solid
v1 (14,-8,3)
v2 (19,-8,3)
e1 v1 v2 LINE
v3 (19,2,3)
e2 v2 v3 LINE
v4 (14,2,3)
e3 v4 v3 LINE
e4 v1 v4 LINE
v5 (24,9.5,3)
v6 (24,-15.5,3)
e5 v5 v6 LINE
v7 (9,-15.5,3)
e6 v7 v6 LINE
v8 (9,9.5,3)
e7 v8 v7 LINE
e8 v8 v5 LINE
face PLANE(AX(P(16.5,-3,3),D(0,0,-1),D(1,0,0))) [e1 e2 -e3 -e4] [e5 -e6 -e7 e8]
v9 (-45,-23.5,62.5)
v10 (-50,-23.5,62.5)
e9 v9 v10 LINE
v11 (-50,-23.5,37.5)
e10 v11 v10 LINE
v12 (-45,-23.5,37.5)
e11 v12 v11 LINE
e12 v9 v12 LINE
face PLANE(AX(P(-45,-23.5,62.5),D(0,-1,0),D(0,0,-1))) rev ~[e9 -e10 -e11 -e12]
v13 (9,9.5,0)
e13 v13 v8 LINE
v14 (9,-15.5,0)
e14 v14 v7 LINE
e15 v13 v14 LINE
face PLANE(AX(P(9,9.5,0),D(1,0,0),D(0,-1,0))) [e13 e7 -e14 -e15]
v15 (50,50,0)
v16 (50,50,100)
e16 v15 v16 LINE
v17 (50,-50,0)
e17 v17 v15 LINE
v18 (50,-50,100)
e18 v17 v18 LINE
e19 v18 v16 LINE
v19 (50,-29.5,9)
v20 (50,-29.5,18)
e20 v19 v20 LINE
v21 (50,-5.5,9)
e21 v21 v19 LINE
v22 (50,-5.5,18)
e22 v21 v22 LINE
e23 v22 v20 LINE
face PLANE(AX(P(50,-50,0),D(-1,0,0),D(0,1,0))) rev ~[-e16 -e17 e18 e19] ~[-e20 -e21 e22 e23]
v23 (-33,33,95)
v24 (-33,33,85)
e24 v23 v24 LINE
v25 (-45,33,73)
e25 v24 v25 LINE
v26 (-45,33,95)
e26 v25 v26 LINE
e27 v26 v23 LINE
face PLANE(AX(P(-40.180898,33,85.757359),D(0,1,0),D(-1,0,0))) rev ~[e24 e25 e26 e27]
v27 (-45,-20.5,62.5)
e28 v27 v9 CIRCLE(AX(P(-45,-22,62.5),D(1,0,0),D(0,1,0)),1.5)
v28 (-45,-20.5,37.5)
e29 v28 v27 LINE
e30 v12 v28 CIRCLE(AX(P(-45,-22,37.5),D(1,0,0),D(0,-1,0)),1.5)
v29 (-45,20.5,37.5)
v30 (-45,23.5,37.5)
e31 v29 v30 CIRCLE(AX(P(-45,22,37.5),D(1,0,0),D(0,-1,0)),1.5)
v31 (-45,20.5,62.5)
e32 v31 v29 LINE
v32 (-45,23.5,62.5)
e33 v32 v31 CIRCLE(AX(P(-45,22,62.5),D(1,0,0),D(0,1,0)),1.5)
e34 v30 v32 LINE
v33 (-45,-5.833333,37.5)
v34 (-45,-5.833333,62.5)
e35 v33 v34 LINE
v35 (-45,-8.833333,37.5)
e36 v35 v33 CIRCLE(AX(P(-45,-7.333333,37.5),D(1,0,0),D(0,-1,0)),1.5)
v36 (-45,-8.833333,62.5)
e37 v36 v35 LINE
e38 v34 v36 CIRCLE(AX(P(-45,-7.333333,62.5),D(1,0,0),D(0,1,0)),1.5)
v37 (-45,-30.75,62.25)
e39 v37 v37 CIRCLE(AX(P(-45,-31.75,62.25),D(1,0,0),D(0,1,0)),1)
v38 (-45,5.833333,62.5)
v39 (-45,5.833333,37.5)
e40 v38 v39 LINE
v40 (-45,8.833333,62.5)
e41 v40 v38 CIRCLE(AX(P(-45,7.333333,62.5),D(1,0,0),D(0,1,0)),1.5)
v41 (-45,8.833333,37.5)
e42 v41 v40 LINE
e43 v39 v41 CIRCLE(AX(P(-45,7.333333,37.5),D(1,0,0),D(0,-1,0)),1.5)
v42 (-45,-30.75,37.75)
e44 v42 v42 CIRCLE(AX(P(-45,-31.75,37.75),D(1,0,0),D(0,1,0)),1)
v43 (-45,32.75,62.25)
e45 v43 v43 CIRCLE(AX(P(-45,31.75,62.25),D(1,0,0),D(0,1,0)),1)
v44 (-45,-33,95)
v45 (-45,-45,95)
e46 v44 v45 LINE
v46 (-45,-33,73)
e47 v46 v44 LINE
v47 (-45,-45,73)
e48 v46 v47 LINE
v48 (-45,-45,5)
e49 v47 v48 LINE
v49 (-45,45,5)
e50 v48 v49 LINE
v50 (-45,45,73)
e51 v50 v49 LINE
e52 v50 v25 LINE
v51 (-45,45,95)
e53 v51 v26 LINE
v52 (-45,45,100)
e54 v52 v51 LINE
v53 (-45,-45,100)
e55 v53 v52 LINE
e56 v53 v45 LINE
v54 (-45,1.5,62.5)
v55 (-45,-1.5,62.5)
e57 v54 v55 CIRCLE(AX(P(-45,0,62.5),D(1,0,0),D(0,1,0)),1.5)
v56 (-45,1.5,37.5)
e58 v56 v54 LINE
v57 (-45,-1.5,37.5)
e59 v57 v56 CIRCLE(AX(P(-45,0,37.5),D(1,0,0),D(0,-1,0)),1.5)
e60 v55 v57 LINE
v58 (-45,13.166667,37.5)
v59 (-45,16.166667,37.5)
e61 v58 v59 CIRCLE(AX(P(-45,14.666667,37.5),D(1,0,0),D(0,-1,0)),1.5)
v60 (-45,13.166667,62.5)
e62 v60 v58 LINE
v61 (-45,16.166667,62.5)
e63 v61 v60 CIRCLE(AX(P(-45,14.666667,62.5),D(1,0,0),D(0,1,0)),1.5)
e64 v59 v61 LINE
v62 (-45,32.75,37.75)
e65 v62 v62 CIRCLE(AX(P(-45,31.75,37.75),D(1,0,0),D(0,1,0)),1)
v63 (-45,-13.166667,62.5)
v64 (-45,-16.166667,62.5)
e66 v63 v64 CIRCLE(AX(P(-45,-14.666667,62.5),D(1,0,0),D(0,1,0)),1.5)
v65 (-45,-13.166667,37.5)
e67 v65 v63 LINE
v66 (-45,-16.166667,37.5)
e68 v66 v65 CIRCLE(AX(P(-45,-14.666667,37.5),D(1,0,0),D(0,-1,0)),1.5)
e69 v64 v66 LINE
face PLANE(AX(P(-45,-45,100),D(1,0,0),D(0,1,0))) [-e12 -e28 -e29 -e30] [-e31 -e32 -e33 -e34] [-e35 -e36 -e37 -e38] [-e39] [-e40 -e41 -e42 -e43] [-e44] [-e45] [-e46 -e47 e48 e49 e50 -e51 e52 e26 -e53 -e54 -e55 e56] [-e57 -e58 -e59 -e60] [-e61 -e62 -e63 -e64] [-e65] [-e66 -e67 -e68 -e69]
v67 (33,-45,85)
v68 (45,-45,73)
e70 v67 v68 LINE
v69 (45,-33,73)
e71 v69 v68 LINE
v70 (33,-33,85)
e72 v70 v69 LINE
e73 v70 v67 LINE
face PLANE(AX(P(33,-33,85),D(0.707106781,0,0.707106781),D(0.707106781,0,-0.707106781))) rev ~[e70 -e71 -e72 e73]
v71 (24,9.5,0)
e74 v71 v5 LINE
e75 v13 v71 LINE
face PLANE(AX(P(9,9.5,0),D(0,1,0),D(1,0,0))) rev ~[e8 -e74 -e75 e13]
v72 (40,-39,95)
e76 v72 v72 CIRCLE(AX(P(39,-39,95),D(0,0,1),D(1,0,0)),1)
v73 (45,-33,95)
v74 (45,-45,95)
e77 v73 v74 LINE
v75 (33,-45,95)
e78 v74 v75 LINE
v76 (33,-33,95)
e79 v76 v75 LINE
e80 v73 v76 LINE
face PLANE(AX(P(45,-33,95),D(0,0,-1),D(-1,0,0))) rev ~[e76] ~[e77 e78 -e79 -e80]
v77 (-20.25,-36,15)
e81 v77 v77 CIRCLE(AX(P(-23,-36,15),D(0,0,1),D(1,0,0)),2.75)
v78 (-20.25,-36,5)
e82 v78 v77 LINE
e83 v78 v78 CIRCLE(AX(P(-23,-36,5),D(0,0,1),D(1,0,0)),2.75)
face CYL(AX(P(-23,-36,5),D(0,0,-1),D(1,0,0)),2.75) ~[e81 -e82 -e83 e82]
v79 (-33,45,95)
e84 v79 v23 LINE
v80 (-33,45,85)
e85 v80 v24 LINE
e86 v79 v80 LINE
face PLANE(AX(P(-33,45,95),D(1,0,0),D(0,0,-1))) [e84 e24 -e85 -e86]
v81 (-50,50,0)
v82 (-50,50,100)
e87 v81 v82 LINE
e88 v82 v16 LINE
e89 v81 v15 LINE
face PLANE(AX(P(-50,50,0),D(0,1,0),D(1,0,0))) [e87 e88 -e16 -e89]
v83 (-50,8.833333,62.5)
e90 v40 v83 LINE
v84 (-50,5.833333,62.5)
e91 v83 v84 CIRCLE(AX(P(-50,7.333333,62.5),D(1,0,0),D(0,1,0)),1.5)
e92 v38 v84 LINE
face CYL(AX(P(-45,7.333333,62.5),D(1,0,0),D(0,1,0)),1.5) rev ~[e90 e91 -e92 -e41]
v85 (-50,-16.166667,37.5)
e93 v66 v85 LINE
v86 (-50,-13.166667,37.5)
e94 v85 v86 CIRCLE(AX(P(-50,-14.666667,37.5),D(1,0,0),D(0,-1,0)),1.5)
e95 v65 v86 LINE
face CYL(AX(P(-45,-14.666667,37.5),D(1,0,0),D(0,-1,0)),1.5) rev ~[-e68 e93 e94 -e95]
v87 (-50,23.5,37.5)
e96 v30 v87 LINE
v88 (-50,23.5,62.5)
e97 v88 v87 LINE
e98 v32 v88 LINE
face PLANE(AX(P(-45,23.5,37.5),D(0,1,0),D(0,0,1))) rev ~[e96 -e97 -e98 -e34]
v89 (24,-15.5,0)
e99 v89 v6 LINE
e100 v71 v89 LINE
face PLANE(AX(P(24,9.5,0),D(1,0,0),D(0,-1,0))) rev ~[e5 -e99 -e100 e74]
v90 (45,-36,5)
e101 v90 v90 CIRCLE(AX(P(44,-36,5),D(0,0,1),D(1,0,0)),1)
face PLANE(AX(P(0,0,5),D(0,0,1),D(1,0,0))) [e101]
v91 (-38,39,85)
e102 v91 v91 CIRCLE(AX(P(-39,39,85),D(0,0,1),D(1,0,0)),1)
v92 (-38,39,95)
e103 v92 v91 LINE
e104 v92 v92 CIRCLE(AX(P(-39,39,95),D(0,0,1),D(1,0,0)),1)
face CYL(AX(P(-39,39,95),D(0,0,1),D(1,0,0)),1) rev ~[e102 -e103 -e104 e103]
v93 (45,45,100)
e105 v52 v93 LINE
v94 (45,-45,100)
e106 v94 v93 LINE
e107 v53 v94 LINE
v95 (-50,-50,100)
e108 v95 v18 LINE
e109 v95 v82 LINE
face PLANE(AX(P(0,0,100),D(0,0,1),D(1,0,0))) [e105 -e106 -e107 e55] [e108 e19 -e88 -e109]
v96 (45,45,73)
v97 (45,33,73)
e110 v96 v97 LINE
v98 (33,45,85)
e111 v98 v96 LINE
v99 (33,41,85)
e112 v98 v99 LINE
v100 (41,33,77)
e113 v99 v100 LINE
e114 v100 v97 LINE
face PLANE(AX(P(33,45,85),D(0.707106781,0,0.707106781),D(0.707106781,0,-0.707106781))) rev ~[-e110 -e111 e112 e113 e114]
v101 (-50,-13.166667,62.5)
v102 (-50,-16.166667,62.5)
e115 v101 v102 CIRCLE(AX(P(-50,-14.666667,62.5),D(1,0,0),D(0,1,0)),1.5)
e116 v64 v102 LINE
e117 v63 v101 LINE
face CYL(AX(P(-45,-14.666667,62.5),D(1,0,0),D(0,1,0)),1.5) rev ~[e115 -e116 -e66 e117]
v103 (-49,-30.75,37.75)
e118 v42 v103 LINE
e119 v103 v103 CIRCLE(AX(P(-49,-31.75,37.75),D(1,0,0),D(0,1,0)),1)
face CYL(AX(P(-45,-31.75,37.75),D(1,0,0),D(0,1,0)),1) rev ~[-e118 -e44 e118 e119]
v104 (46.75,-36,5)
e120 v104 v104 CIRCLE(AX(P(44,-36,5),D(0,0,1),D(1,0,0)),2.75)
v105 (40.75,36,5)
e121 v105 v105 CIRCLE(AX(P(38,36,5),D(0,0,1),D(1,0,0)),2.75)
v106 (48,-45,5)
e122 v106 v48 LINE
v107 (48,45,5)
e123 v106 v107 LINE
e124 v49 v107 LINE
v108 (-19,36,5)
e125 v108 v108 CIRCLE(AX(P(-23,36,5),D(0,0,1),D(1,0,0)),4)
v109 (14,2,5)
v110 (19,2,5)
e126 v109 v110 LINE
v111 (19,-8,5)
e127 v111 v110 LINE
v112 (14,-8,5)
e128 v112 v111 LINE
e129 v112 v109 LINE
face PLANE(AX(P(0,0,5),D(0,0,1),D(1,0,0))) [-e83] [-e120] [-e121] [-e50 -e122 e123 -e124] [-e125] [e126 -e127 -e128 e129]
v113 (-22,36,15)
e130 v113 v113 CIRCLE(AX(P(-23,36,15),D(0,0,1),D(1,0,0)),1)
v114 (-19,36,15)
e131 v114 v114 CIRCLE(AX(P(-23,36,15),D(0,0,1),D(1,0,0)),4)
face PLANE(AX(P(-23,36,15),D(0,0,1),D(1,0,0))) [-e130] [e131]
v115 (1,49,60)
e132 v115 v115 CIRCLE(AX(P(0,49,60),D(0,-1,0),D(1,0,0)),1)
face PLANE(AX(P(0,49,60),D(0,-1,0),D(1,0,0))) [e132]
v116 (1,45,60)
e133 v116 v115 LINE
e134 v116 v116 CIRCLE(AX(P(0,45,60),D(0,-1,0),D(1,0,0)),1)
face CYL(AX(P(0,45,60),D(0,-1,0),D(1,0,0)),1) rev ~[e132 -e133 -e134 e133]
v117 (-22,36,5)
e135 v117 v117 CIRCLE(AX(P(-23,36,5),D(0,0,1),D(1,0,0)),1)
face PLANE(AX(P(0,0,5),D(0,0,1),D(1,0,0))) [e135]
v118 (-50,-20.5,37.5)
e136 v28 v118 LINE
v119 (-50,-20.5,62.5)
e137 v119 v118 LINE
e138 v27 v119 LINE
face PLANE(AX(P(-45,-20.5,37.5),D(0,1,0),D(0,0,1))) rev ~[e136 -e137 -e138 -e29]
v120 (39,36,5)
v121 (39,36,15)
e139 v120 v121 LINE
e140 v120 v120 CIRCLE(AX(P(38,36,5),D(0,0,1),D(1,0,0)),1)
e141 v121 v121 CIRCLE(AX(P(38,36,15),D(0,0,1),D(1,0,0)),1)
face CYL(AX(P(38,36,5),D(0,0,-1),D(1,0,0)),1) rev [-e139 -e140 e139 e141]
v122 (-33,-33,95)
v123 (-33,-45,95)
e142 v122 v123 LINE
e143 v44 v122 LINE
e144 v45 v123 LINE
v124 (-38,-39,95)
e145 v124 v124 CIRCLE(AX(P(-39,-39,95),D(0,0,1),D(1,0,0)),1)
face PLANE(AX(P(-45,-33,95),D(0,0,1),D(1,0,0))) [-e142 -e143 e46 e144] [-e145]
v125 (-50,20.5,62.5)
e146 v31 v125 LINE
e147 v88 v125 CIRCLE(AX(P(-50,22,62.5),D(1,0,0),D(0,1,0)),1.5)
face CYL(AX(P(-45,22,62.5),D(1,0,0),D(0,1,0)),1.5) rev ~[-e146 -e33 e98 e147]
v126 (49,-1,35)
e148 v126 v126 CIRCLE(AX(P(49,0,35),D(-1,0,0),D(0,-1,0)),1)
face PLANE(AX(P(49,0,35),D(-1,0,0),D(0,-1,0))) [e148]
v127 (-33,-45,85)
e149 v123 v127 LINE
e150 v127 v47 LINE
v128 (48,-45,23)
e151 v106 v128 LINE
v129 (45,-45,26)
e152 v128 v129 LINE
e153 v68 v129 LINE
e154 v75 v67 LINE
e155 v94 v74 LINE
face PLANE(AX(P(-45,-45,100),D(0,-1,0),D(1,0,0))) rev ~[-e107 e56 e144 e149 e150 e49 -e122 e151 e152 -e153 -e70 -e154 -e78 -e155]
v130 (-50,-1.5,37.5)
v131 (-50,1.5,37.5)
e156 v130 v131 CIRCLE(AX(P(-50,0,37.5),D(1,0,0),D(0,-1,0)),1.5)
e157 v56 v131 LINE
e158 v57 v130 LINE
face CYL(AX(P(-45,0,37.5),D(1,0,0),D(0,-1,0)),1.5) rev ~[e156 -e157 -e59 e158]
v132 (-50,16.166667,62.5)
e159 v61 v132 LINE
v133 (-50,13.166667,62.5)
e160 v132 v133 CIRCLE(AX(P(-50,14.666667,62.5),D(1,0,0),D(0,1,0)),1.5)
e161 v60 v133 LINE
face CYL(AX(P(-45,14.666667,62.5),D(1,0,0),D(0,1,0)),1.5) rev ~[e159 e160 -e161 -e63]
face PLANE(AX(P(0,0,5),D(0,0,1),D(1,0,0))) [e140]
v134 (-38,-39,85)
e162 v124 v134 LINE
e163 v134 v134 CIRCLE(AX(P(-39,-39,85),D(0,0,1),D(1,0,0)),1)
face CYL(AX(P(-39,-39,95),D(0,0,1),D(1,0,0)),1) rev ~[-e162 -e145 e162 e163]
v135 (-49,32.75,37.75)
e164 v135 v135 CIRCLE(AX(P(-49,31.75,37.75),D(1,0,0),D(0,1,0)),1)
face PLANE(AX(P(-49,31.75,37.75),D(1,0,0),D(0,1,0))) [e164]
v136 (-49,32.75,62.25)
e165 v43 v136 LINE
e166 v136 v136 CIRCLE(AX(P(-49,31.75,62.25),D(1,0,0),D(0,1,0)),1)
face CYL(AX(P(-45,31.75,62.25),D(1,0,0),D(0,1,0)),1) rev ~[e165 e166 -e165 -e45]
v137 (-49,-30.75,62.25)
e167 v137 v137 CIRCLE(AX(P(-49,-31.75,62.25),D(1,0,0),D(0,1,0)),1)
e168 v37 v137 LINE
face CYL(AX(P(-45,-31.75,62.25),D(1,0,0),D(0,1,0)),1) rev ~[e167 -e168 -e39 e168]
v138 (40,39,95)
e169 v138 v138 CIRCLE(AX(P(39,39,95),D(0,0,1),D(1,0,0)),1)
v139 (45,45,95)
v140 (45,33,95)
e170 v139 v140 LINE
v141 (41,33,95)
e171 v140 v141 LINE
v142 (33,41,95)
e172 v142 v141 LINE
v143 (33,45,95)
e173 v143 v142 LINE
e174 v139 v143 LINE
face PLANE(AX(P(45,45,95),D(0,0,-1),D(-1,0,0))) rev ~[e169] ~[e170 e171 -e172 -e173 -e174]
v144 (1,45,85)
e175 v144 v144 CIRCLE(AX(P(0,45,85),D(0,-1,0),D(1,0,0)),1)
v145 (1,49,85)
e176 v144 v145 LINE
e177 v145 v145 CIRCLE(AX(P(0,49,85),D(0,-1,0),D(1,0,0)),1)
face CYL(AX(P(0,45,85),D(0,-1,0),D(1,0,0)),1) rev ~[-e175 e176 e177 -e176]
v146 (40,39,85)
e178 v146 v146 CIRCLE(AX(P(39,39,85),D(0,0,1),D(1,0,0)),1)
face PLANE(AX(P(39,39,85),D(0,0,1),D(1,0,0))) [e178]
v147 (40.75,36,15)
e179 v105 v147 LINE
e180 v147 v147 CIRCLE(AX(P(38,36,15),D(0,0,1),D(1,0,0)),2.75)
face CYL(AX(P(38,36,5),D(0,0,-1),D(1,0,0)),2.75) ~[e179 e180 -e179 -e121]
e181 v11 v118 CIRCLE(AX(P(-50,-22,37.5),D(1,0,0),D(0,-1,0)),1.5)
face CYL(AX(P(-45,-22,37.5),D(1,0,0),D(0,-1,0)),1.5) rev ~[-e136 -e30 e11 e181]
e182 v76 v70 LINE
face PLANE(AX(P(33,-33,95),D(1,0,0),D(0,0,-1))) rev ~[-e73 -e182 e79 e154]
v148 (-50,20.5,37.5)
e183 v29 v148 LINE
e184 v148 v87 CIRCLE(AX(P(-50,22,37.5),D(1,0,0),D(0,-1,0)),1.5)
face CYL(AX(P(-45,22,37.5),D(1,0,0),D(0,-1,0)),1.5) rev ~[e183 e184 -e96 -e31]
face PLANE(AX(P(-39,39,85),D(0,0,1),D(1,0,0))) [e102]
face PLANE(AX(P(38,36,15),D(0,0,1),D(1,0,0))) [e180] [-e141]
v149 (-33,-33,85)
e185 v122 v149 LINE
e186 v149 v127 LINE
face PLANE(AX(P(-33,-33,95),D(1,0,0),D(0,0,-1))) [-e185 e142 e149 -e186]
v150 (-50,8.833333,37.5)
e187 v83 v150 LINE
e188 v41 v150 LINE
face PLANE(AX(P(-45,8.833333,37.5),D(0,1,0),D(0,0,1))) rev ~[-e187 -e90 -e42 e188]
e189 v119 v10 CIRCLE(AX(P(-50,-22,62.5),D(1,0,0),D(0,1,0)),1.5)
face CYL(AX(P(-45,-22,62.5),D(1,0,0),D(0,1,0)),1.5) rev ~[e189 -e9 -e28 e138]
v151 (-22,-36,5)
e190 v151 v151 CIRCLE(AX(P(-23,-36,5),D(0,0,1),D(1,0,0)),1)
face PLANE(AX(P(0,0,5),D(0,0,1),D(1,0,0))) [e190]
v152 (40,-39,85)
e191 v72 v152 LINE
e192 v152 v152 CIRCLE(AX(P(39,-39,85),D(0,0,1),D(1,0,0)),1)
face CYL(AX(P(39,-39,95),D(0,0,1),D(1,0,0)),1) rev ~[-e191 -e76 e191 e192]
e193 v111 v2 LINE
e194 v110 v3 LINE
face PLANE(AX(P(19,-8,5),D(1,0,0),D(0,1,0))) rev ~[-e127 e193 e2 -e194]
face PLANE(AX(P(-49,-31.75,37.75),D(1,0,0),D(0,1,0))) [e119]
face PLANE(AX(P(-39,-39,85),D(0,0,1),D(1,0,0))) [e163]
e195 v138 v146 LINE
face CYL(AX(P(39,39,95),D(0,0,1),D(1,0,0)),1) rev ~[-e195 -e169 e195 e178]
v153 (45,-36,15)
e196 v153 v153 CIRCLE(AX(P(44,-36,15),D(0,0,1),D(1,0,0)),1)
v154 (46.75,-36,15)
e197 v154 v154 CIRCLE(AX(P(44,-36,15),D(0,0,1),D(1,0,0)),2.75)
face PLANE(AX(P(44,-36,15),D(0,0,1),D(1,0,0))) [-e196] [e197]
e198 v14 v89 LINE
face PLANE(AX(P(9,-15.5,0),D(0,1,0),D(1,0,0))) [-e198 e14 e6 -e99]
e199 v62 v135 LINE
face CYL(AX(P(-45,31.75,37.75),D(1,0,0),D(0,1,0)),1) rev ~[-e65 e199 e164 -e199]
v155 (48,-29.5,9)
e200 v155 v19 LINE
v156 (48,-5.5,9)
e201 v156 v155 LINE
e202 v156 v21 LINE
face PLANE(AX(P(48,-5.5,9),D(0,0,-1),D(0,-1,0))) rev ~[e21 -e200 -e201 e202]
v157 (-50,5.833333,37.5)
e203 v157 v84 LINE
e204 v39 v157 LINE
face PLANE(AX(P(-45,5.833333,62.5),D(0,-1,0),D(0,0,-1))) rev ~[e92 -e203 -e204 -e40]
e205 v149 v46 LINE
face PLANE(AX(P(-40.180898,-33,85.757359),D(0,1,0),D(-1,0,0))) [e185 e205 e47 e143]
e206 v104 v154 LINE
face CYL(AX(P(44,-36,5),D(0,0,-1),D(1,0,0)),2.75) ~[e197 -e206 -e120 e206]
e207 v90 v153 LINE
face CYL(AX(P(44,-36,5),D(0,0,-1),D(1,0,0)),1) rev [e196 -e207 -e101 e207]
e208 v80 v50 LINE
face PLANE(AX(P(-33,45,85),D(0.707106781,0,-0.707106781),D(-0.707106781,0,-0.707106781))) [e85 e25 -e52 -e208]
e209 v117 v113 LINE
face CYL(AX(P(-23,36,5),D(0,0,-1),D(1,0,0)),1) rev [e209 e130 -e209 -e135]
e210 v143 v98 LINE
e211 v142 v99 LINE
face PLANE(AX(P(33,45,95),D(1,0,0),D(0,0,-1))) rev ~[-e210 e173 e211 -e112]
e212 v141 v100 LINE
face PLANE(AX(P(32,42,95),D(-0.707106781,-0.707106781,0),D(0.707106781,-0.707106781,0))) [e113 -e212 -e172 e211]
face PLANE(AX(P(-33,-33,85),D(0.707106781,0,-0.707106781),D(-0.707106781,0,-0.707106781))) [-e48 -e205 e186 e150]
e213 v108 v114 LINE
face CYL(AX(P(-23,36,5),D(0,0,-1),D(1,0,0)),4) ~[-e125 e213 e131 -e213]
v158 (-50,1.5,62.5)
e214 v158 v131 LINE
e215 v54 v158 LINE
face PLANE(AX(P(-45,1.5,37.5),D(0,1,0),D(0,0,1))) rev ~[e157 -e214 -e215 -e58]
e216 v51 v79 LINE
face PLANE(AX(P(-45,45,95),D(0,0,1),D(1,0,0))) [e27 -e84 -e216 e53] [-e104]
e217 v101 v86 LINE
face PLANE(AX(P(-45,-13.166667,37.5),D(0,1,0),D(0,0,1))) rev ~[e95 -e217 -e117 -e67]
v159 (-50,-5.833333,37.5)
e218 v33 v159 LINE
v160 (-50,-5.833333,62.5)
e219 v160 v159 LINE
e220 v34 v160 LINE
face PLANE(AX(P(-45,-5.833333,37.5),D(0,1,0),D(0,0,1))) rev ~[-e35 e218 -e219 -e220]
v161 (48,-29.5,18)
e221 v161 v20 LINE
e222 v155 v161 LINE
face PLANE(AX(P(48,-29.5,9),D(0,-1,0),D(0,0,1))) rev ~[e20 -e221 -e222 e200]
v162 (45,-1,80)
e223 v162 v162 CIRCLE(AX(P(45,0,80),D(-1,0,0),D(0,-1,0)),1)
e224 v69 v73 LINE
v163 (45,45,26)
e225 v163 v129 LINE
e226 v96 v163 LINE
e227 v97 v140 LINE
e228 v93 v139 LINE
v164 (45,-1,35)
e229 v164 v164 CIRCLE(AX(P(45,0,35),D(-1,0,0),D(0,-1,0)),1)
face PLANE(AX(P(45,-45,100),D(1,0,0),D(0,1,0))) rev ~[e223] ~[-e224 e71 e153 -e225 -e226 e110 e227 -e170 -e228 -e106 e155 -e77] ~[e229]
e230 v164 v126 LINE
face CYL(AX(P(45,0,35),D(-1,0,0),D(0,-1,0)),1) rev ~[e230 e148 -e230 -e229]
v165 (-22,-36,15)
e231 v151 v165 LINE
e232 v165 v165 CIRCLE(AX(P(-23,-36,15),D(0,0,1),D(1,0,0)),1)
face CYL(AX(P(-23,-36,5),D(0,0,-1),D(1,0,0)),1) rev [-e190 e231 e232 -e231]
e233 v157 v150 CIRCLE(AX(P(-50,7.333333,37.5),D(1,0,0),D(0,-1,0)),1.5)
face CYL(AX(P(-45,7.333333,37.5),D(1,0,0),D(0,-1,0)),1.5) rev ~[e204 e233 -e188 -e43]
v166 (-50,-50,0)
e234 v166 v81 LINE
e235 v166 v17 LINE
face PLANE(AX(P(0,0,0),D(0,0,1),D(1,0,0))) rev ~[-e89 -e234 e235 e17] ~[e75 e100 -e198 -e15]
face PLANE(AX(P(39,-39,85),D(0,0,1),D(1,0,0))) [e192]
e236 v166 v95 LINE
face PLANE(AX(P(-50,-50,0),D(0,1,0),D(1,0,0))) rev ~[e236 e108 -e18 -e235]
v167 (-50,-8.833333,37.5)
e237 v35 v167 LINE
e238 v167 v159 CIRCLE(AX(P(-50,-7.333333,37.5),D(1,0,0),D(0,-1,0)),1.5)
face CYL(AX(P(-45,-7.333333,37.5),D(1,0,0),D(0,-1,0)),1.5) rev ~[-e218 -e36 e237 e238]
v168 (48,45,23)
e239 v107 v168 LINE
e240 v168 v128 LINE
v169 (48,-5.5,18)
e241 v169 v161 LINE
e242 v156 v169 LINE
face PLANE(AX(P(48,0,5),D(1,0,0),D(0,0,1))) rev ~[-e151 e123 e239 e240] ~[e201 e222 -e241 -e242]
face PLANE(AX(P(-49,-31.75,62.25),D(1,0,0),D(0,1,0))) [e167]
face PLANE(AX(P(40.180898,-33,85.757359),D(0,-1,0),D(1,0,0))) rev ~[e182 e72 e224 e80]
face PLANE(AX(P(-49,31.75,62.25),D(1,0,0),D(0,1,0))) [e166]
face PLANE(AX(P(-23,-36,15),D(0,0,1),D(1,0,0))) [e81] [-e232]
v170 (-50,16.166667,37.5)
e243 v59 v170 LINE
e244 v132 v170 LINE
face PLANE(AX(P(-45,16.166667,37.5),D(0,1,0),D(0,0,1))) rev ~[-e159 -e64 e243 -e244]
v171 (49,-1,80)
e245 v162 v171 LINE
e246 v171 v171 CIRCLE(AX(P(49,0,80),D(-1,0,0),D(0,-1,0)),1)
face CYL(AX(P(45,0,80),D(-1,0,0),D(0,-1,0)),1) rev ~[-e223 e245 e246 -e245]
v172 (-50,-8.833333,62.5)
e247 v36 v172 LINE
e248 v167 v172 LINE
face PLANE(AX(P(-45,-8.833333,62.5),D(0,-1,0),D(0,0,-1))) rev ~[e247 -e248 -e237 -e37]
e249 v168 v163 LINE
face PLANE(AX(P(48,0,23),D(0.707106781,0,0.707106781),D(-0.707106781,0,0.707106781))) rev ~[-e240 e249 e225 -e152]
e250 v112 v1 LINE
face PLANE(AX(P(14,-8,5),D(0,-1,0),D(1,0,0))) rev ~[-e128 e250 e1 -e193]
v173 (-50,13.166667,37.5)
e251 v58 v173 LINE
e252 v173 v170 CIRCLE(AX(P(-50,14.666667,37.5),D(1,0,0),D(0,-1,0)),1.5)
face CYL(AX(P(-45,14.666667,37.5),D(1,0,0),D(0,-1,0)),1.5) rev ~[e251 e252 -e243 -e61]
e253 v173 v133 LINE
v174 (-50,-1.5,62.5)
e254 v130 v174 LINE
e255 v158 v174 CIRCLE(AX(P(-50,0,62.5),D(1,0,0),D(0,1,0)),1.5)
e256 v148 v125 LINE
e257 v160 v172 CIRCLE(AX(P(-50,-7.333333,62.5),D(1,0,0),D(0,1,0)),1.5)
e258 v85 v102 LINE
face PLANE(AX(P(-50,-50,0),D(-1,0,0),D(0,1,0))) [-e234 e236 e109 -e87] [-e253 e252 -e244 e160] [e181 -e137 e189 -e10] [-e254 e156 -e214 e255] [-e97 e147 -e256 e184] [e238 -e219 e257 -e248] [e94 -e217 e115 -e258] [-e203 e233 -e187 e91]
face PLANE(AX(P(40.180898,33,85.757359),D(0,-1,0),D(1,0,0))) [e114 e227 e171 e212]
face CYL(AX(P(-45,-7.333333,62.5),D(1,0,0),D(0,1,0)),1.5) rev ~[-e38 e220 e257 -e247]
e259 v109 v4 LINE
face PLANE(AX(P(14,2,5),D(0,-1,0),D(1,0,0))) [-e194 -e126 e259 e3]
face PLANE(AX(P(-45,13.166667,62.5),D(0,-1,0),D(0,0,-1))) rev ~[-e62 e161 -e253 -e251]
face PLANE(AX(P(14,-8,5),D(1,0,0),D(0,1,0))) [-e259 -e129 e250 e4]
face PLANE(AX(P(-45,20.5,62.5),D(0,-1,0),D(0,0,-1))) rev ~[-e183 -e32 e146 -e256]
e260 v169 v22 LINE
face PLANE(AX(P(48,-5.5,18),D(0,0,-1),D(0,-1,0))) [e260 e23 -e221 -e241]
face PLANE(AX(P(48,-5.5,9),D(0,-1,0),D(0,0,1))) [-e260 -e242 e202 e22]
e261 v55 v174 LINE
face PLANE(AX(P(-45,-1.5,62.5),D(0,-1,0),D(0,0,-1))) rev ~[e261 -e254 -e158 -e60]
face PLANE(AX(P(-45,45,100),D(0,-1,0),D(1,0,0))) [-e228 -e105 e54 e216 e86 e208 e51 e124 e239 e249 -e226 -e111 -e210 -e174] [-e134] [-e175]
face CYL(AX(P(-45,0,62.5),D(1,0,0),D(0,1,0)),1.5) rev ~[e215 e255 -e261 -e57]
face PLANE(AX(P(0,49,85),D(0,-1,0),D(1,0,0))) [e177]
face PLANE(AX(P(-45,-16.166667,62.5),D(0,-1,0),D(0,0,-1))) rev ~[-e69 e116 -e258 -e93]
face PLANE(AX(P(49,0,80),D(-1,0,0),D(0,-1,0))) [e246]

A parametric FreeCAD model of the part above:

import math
import FreeCAD as App
import Part
import Sketcher

V = App.Vector
Q = App.Units.Quantity

doc = App.newDocument("Part")
params = doc.addObject("Spreadsheet::Sheet", "Params")
for row, (alias, value) in enumerate([
    ("sketch1_width", "100 mm"),
    ("pad1_length", "100 mm"),
    ("sketch2_width", "90 mm"),
    ("pocket1_length", "95 mm"),
    ("sketch3_width", "20 mm"),
    ("sketch3_height", "18 mm"),
    ("sketch3_height2", "38 mm"),
    ("pocket2_length", "45 mm"),
    ("sketch4_diameter", "8 mm"),
    ("sketch4_diameter2", "2 mm"),
    ("sketch4_diameter3", "5.5 mm"),
    ("pad2_length", "10 mm"),
    ("sketch5_width", "24 mm"),
    ("sketch5_height", "9 mm"),
    ("pocket3_length", "5 mm"),
    ("sketch6_width", "5 mm"),
    ("sketch6_height", "10 mm"),
    ("pocket4_length", "6 mm"),
    ("sketch7_width", "15 mm"),
    ("sketch7_height", "25 mm"),
    ("pocket5_length", "3 mm"),
    ("sketch8_diameter", "2 mm"),
    ("pocket6_length", "4 mm"),
    ("sketch9_radius", "1.5 mm"),
    ("sketch9_height", "25 mm"),
    ("pocket7_length", "6 mm"),
    ("sketch10_radius", "1.5 mm"),
    ("sketch10_height", "25 mm"),
    ("pocket8_length", "6 mm"),
    ("sketch11_radius", "1.5 mm"),
    ("sketch11_height", "25 mm"),
    ("pocket9_length", "6 mm"),
    ("sketch12_radius", "1.5 mm"),
    ("sketch12_height", "25 mm"),
    ("pocket10_length", "6 mm"),
    ("linearpattern_pitch", "22 mm"),
    ("sketch13_diameter", "2 mm"),
    ("pocket11_length", "4 mm"),
    ("sketch14_diameter", "2 mm"),
    ("pocket12_length", "4 mm"),
    ("sketch15_width", "12 mm"),
    ("sketch15_height", "22 mm"),
    ("sketch15_height2", "10 mm"),
    ("pad3_length", "12 mm"),
    ("sketch16_width", "12 mm"),
    ("sketch16_height", "22 mm"),
    ("sketch16_height2", "10 mm"),
    ("pad4_length", "12 mm"),
    ("linearpattern2_pitch", "78 mm"),
    ("sketch17_diameter", "2 mm"),
    ("pocket13_length", "10 mm"),
    ("sketch18_width", "10 mm"),
    ("pocket14_length", "20 mm"),
], start=1):
    params.set(f"A{row}", alias)
    params.set(f"B{row}", "=" + value)
    params.setAlias(f"B{row}", alias)

body = doc.addObject("PartDesign::Body", "Body")

# Sketch on XY plane
sketch1 = body.newObject("Sketcher::SketchObject", "Sketch")
sketch1.AttachmentSupport = (doc.getObject("XY_Plane"), [""])
sketch1.MapMode = "FlatFace"
sketch1.addGeometry([
    Part.LineSegment(V(-50, 50, 0), V(-50, -50, 0)),
    Part.LineSegment(V(-50, -50, 0), V(50, -50, 0)),
    Part.LineSegment(V(50, -50, 0), V(50, 50, 0)),
    Part.LineSegment(V(50, 50, 0), V(-50, 50, 0)),
], False)
sketch1.addConstraint([
    Sketcher.Constraint("Coincident", 0, 2, 1, 1),
    Sketcher.Constraint("Coincident", 1, 2, 2, 1),
    Sketcher.Constraint("Coincident", 2, 2, 3, 1),
    Sketcher.Constraint("Coincident", 3, 2, 0, 1),
    Sketcher.Constraint("Vertical", 0),
    Sketcher.Constraint("Horizontal", 1),
    Sketcher.Constraint("Vertical", 2),
    Sketcher.Constraint("Horizontal", 3),
    Sketcher.Constraint("Symmetric", 0, 2, 2, 2, -1, 1),
    Sketcher.Constraint("Equal", 3, 0),
    Sketcher.Constraint("DistanceX", 1, 1, 1, 2, Q("100 mm")),
])
sketch1.setExpression("Constraints[10]", "Params.sketch1_width")
pad1 = body.newObject("PartDesign::Pad", "Pad")
pad1.Profile = sketch1
pad1.setExpression("Length", "Params.pad1_length")

# Sketch on XY plane
sketch2 = body.newObject("Sketcher::SketchObject", "Sketch001")
sketch2.AttachmentSupport = (doc.getObject("XY_Plane"), [""])
sketch2.MapMode = "FlatFace"
sketch2.AttachmentOffset = App.Placement(V(0, 0, 100), App.Rotation())
sketch2.addGeometry([
    Part.LineSegment(V(-45, 45, 0), V(-45, -45, 0)),
    Part.LineSegment(V(-45, -45, 0), V(45, -45, 0)),
    Part.LineSegment(V(45, -45, 0), V(45, 45, 0)),
    Part.LineSegment(V(45, 45, 0), V(-45, 45, 0)),
], False)
sketch2.addConstraint([
    Sketcher.Constraint("Coincident", 0, 2, 1, 1),
    Sketcher.Constraint("Coincident", 1, 2, 2, 1),
    Sketcher.Constraint("Coincident", 2, 2, 3, 1),
    Sketcher.Constraint("Coincident", 3, 2, 0, 1),
    Sketcher.Constraint("Vertical", 0),
    Sketcher.Constraint("Horizontal", 1),
    Sketcher.Constraint("Vertical", 2),
    Sketcher.Constraint("Horizontal", 3),
    Sketcher.Constraint("Symmetric", 0, 2, 2, 2, -1, 1),
    Sketcher.Constraint("Equal", 3, 0),
    Sketcher.Constraint("DistanceX", 1, 1, 1, 2, Q("90 mm")),
])
sketch2.setExpression("Constraints[10]", "Params.sketch2_width")
pocket1 = body.newObject("PartDesign::Pocket", "Pocket")
pocket1.Profile = sketch2
pocket1.setExpression("Length", "Params.pocket1_length")

# Sketch on XZ plane
sketch3 = body.newObject("Sketcher::SketchObject", "Sketch002")
sketch3.AttachmentSupport = (doc.getObject("XZ_Plane"), [""])
sketch3.MapMode = "FlatFace"
sketch3.addGeometry([
    Part.LineSegment(V(28, 5, 0), V(48, 5, 0)),
    Part.LineSegment(V(48, 5, 0), V(48, 23, 0)),
    Part.LineSegment(V(48, 23, 0), V(28, 43, 0)),
    Part.LineSegment(V(28, 43, 0), V(28, 5, 0)),
], False)
sketch3.addConstraint([
    Sketcher.Constraint("Coincident", 0, 2, 1, 1),
    Sketcher.Constraint("Coincident", 1, 2, 2, 1),
    Sketcher.Constraint("Coincident", 2, 2, 3, 1),
    Sketcher.Constraint("Coincident", 3, 2, 0, 1),
    Sketcher.Constraint("Horizontal", 0),
    Sketcher.Constraint("Vertical", 1),
    Sketcher.Constraint("Vertical", 3),
    Sketcher.Constraint("DistanceX", 0, 1, 0, 2, Q("20 mm")),
    Sketcher.Constraint("DistanceY", 1, 1, 1, 2, Q("18 mm")),
    Sketcher.Constraint("DistanceY", 3, 2, 3, 1, Q("38 mm")),
    Sketcher.Constraint("DistanceX", -1, 1, 0, 2, Q("48 mm")),
    Sketcher.Constraint("DistanceY", -1, 1, 0, 2, Q("5 mm")),
])
sketch3.setExpression("Constraints[7]", "Params.sketch3_width")
sketch3.setExpression("Constraints[8]", "Params.sketch3_height")
sketch3.setExpression("Constraints[9]", "Params.sketch3_height2")
pocket2 = body.newObject("PartDesign::Pocket", "Pocket001")
pocket2.Profile = sketch3
pocket2.setExpression("Length", "Params.pocket2_length")
doc.recompute()

mirrored = body.newObject("PartDesign::Mirrored", "Mirrored")
mirrored.Originals = [pocket2]
mirrored.MirrorPlane = (doc.getObject("XZ_Plane"), [""])
body.Tip = mirrored

# Sketch on XY plane
sketch4 = body.newObject("Sketcher::SketchObject", "Sketch003")
sketch4.AttachmentSupport = (doc.getObject("XY_Plane"), [""])
sketch4.MapMode = "FlatFace"
sketch4.AttachmentOffset = App.Placement(V(0, 0, 5), App.Rotation())
sketch4.addGeometry([
    Part.Circle(V(-23, 36, 0), V(0, 0, 1), 4),  # 0
    Part.Circle(V(-23, 36, 0), V(0, 0, 1), 1),  # 1
    Part.Circle(V(38, 36, 0), V(0, 0, 1), 2.8),  # 2
    Part.Circle(V(38, 36, 0), V(0, 0, 1), 1),  # 3
    Part.Circle(V(44, -36, 0), V(0, 0, 1), 2.8),  # 4
    Part.Circle(V(44, -36, 0), V(0, 0, 1), 1),  # 5
    Part.Circle(V(-23, -36, 0), V(0, 0, 1), 2.8),  # 6
    Part.Circle(V(-23, -36, 0), V(0, 0, 1), 1),  # 7
], False)
sketch4.addConstraint([
    Sketcher.Constraint("Coincident", 1, 3, 0, 3),
    Sketcher.Constraint("Coincident", 3, 3, 2, 3),
    Sketcher.Constraint("Coincident", 5, 3, 4, 3),
    Sketcher.Constraint("Coincident", 7, 3, 6, 3),
    Sketcher.Constraint("Equal", 1, 3),
    Sketcher.Constraint("Equal", 2, 4),
    Sketcher.Constraint("Equal", 3, 5),
    Sketcher.Constraint("Equal", 4, 6),
    Sketcher.Constraint("Equal", 5, 7),
    Sketcher.Constraint("Symmetric", 0, 3, 6, 3, -1),
    Sketcher.Constraint("Horizontal", 1, 3, 2, 3),
    Sketcher.Constraint("Horizontal", 5, 3, 6, 3),
    Sketcher.Constraint("Diameter", 0, Q("8 mm")),
    Sketcher.Constraint("Diameter", 1, Q("2 mm")),
    Sketcher.Constraint("Diameter", 2, Q("5.5 mm")),
    Sketcher.Constraint("DistanceX", 0, 3, -1, 1, Q("23 mm")),
    Sketcher.Constraint("DistanceY", -1, 1, 0, 3, Q("36 mm")),
    Sketcher.Constraint("DistanceX", -1, 1, 2, 3, Q("38 mm")),
    Sketcher.Constraint("DistanceX", -1, 1, 4, 3, Q("44 mm")),
])
sketch4.setExpression("Constraints[12]", "Params.sketch4_diameter")
sketch4.setExpression("Constraints[13]", "Params.sketch4_diameter2")
sketch4.setExpression("Constraints[14]", "Params.sketch4_diameter3")
pad2 = body.newObject("PartDesign::Pad", "Pad001")
pad2.Profile = sketch4
pad2.setExpression("Length", "Params.pad2_length")

# Sketch on YZ plane
sketch5 = body.newObject("Sketcher::SketchObject", "Sketch004")
sketch5.AttachmentSupport = (doc.getObject("YZ_Plane"), [""])
sketch5.MapMode = "FlatFace"
sketch5.AttachmentOffset = App.Placement(V(0, 0, 48), App.Rotation())
sketch5.addGeometry([
    Part.LineSegment(V(-6, 18, 0), V(-6, 9, 0)),
    Part.LineSegment(V(-6, 9, 0), V(-30, 9, 0)),
    Part.LineSegment(V(-30, 9, 0), V(-30, 18, 0)),
    Part.LineSegment(V(-30, 18, 0), V(-6, 18, 0)),
], False)
sketch5.addConstraint([
    Sketcher.Constraint("Coincident", 0, 2, 1, 1),
    Sketcher.Constraint("Coincident", 1, 2, 2, 1),
    Sketcher.Constraint("Coincident", 2, 2, 3, 1),
    Sketcher.Constraint("Coincident", 3, 2, 0, 1),
    Sketcher.Constraint("Vertical", 0),
    Sketcher.Constraint("Horizontal", 1),
    Sketcher.Constraint("Vertical", 2),
    Sketcher.Constraint("Horizontal", 3),
    Sketcher.Constraint("DistanceX", 1, 2, 1, 1, Q("24 mm")),
    Sketcher.Constraint("DistanceY", 0, 2, 0, 1, Q("9 mm")),
    Sketcher.Constraint("DistanceY", -1, 1, 0, 2, Q("9 mm")),
    Sketcher.Constraint("DistanceX", 0, 2, -1, 1, Q("5.5 mm")),
])
sketch5.setExpression("Constraints[8]", "Params.sketch5_width")
sketch5.setExpression("Constraints[9]", "Params.sketch5_height")
pocket3 = body.newObject("PartDesign::Pocket", "Pocket002")
pocket3.Profile = sketch5
pocket3.setExpression("Length", "Params.pocket3_length")
pocket3.Reversed = True

# Sketch on XY plane
sketch6 = body.newObject("Sketcher::SketchObject", "Sketch005")
sketch6.AttachmentSupport = (doc.getObject("XY_Plane"), [""])
sketch6.MapMode = "FlatFace"
sketch6.AttachmentOffset = App.Placement(V(0, 0, 5), App.Rotation())
sketch6.addGeometry([
    Part.LineSegment(V(14, 2, 0), V(14, -8, 0)),
    Part.LineSegment(V(14, -8, 0), V(19, -8, 0)),
    Part.LineSegment(V(19, -8, 0), V(19, 2, 0)),
    Part.LineSegment(V(19, 2, 0), V(14, 2, 0)),
], False)
sketch6.addConstraint([
    Sketcher.Constraint("Coincident", 0, 2, 1, 1),
    Sketcher.Constraint("Coincident", 1, 2, 2, 1),
    Sketcher.Constraint("Coincident", 2, 2, 3, 1),
    Sketcher.Constraint("Coincident", 3, 2, 0, 1),
    Sketcher.Constraint("Vertical", 0),
    Sketcher.Constraint("Horizontal", 1),
    Sketcher.Constraint("Vertical", 2),
    Sketcher.Constraint("Horizontal", 3),
    Sketcher.Constraint("DistanceX", 1, 1, 1, 2, Q("5 mm")),
    Sketcher.Constraint("DistanceY", 0, 2, 0, 1, Q("10 mm")),
    Sketcher.Constraint("DistanceX", -1, 1, 0, 2, Q("14 mm")),
    Sketcher.Constraint("DistanceY", 0, 2, -1, 1, Q("8 mm")),
])
sketch6.setExpression("Constraints[8]", "Params.sketch6_width")
sketch6.setExpression("Constraints[9]", "Params.sketch6_height")
pocket4 = body.newObject("PartDesign::Pocket", "Pocket003")
pocket4.Profile = sketch6
pocket4.setExpression("Length", "Params.pocket4_length")

# Sketch on XY plane
sketch7 = body.newObject("Sketcher::SketchObject", "Sketch006")
sketch7.AttachmentSupport = (doc.getObject("XY_Plane"), [""])
sketch7.MapMode = "FlatFace"
sketch7.addGeometry([
    Part.LineSegment(V(9, -16, 0), V(9, 10, 0)),
    Part.LineSegment(V(9, 10, 0), V(24, 10, 0)),
    Part.LineSegment(V(24, 10, 0), V(24, -16, 0)),
    Part.LineSegment(V(24, -16, 0), V(9, -16, 0)),
], False)
sketch7.addConstraint([
    Sketcher.Constraint("Coincident", 0, 2, 1, 1),
    Sketcher.Constraint("Coincident", 1, 2, 2, 1),
    Sketcher.Constraint("Coincident", 2, 2, 3, 1),
    Sketcher.Constraint("Coincident", 3, 2, 0, 1),
    Sketcher.Constraint("Vertical", 0),
    Sketcher.Constraint("Horizontal", 1),
    Sketcher.Constraint("Vertical", 2),
    Sketcher.Constraint("Horizontal", 3),
    Sketcher.Constraint("DistanceX", 1, 1, 1, 2, Q("15 mm")),
    Sketcher.Constraint("DistanceY", 0, 1, 0, 2, Q("25 mm")),
    Sketcher.Constraint("DistanceX", -1, 1, 0, 2, Q("9 mm")),
    Sketcher.Constraint("DistanceY", -1, 1, 0, 2, Q("9.5 mm")),
])
sketch7.setExpression("Constraints[8]", "Params.sketch7_width")
sketch7.setExpression("Constraints[9]", "Params.sketch7_height")
pocket5 = body.newObject("PartDesign::Pocket", "Pocket004")
pocket5.Profile = sketch7
pocket5.setExpression("Length", "Params.pocket5_length")
pocket5.Reversed = True

# Sketch on YZ plane
sketch8 = body.newObject("Sketcher::SketchObject", "Sketch007")
sketch8.AttachmentSupport = (doc.getObject("YZ_Plane"), [""])
sketch8.MapMode = "FlatFace"
sketch8.AttachmentOffset = App.Placement(V(0, 0, -45), App.Rotation())
sketch8.addGeometry([
    Part.Circle(V(-31.8, 62.2, 0), V(0, 0, 1), 1),
    Part.Circle(V(31.8, 62.2, 0), V(0, 0, 1), 1),
    Part.Circle(V(-31.8, 37.8, 0), V(0, 0, 1), 1),
    Part.Circle(V(31.8, 37.8, 0), V(0, 0, 1), 1),
], False)
sketch8.addConstraint([
    Sketcher.Constraint("Equal", 0, 1),
    Sketcher.Constraint("Equal", 1, 2),
    Sketcher.Constraint("Equal", 2, 3),
    Sketcher.Constraint("Symmetric", 0, 3, 1, 3, -2),
    Sketcher.Constraint("Symmetric", 2, 3, 3, 3, -2),
    Sketcher.Constraint("Vertical", 0, 3, 2, 3),
    Sketcher.Constraint("Diameter", 0, Q("2 mm")),
    Sketcher.Constraint("DistanceX", 0, 3, 1, 3, Q("63.5 mm")),
    Sketcher.Constraint("DistanceY", 2, 3, 0, 3, Q("24.5 mm")),
    Sketcher.Constraint("DistanceY", -1, 1, 0, 3, Q("62.25 mm")),
])
sketch8.setExpression("Constraints[6]", "Params.sketch8_diameter")
pocket6 = body.newObject("PartDesign::Pocket", "Pocket005")
pocket6.Profile = sketch8
pocket6.setExpression("Length", "Params.pocket6_length")

# Sketch on YZ plane
sketch9 = body.newObject("Sketcher::SketchObject", "Sketch008")
sketch9.AttachmentSupport = (doc.getObject("YZ_Plane"), [""])
sketch9.MapMode = "FlatFace"
sketch9.AttachmentOffset = App.Placement(V(0, 0, -45), App.Rotation())
sketch9.addGeometry([
    Part.ArcOfCircle(Part.Circle(V(0, 62.5, 0), V(0, 0, 1), 1.5), math.radians(0), math.radians(180)),
    Part.LineSegment(V(-1.5, 62.5, 0), V(-1.5, 37.5, 0)),
    Part.ArcOfCircle(Part.Circle(V(0, 37.5, 0), V(0, 0, 1), 1.5), math.radians(180), math.radians(360)),
    Part.LineSegment(V(1.5, 37.5, 0), V(1.5, 62.5, 0)),
], False)
sketch9.addConstraint([
    Sketcher.Constraint("Tangent", 0, 2, 1, 1),
    Sketcher.Constraint("Tangent", 1, 2, 2, 1),
    Sketcher.Constraint("Tangent", 2, 2, 3, 1),
    Sketcher.Constraint("Tangent", 3, 2, 0, 1),
    Sketcher.Constraint("Vertical", 1),
    Sketcher.Constraint("Vertical", 3),
    Sketcher.Constraint("PointOnObject", 0, 3, -2),
    Sketcher.Constraint("Radius", 0, Q("1.5 mm")),
    Sketcher.Constraint("DistanceY", 1, 2, 1, 1, Q("25 mm")),
    Sketcher.Constraint("DistanceY", -1, 1, 0, 3, Q("62.5 mm")),
])
sketch9.setExpression("Constraints[7]", "Params.sketch9_radius")
sketch9.setExpression("Constraints[8]", "Params.sketch9_height")
pocket7 = body.newObject("PartDesign::Pocket", "Pocket006")
pocket7.Profile = sketch9
pocket7.setExpression("Length", "Params.pocket7_length")

# Sketch on YZ plane
sketch10 = body.newObject("Sketcher::SketchObject", "Sketch009")
sketch10.AttachmentSupport = (doc.getObject("YZ_Plane"), [""])
sketch10.MapMode = "FlatFace"
sketch10.AttachmentOffset = App.Placement(V(0, 0, -45), App.Rotation())
sketch10.addGeometry([
    Part.ArcOfCircle(Part.Circle(V(7.3, 62.5, 0), V(0, 0, 1), 1.5), math.radians(0), math.radians(180)),
    Part.LineSegment(V(5.8, 62.5, 0), V(5.8, 37.5, 0)),
    Part.ArcOfCircle(Part.Circle(V(7.3, 37.5, 0), V(0, 0, 1), 1.5), math.radians(180), math.radians(360)),
    Part.LineSegment(V(8.8, 37.5, 0), V(8.8, 62.5, 0)),
], False)
sketch10.addConstraint([
    Sketcher.Constraint("Tangent", 0, 2, 1, 1),
    Sketcher.Constraint("Tangent", 1, 2, 2, 1),
    Sketcher.Constraint("Tangent", 2, 2, 3, 1),
    Sketcher.Constraint("Tangent", 3, 2, 0, 1),
    Sketcher.Constraint("Vertical", 1),
    Sketcher.Constraint("Vertical", 3),
    Sketcher.Constraint("Radius", 0, Q("1.5 mm")),
    Sketcher.Constraint("DistanceY", 1, 2, 1, 1, Q("25 mm")),
    Sketcher.Constraint("DistanceY", -1, 1, 0, 3, Q("62.5 mm")),
    Sketcher.Constraint("DistanceX", -1, 1, 0, 3, Q("7.333333 mm")),
])
sketch10.setExpression("Constraints[6]", "Params.sketch10_radius")
sketch10.setExpression("Constraints[7]", "Params.sketch10_height")
pocket8 = body.newObject("PartDesign::Pocket", "Pocket007")
pocket8.Profile = sketch10
pocket8.setExpression("Length", "Params.pocket8_length")

# Sketch on YZ plane
sketch11 = body.newObject("Sketcher::SketchObject", "Sketch010")
sketch11.AttachmentSupport = (doc.getObject("YZ_Plane"), [""])
sketch11.MapMode = "FlatFace"
sketch11.AttachmentOffset = App.Placement(V(0, 0, -45), App.Rotation())
sketch11.addGeometry([
    Part.ArcOfCircle(Part.Circle(V(14.7, 62.5, 0), V(0, 0, 1), 1.5), math.radians(0), math.radians(180)),
    Part.LineSegment(V(13.2, 62.5, 0), V(13.2, 37.5, 0)),
    Part.ArcOfCircle(Part.Circle(V(14.7, 37.5, 0), V(0, 0, 1), 1.5), math.radians(180), math.radians(360)),
    Part.LineSegment(V(16.2, 37.5, 0), V(16.2, 62.5, 0)),
], False)
sketch11.addConstraint([
    Sketcher.Constraint("Tangent", 0, 2, 1, 1),
    Sketcher.Constraint("Tangent", 1, 2, 2, 1),
    Sketcher.Constraint("Tangent", 2, 2, 3, 1),
    Sketcher.Constraint("Tangent", 3, 2, 0, 1),
    Sketcher.Constraint("Vertical", 1),
    Sketcher.Constraint("Vertical", 3),
    Sketcher.Constraint("Radius", 0, Q("1.5 mm")),
    Sketcher.Constraint("DistanceY", 1, 2, 1, 1, Q("25 mm")),
    Sketcher.Constraint("DistanceY", -1, 1, 0, 3, Q("62.5 mm")),
    Sketcher.Constraint("DistanceX", -1, 1, 0, 3, Q("14.666667 mm")),
])
sketch11.setExpression("Constraints[6]", "Params.sketch11_radius")
sketch11.setExpression("Constraints[7]", "Params.sketch11_height")
pocket9 = body.newObject("PartDesign::Pocket", "Pocket008")
pocket9.Profile = sketch11
pocket9.setExpression("Length", "Params.pocket9_length")

# Sketch on YZ plane
sketch12 = body.newObject("Sketcher::SketchObject", "Sketch011")
sketch12.AttachmentSupport = (doc.getObject("YZ_Plane"), [""])
sketch12.MapMode = "FlatFace"
sketch12.AttachmentOffset = App.Placement(V(0, 0, -45), App.Rotation())
sketch12.addGeometry([
    Part.ArcOfCircle(Part.Circle(V(22, 62.5, 0), V(0, 0, 1), 1.5), math.radians(0), math.radians(180)),
    Part.LineSegment(V(20.5, 62.5, 0), V(20.5, 37.5, 0)),
    Part.ArcOfCircle(Part.Circle(V(22, 37.5, 0), V(0, 0, 1), 1.5), math.radians(180), math.radians(360)),
    Part.LineSegment(V(23.5, 37.5, 0), V(23.5, 62.5, 0)),
], False)
sketch12.addConstraint([
    Sketcher.Constraint("Tangent", 0, 2, 1, 1),
    Sketcher.Constraint("Tangent", 1, 2, 2, 1),
    Sketcher.Constraint("Tangent", 2, 2, 3, 1),
    Sketcher.Constraint("Tangent", 3, 2, 0, 1),
    Sketcher.Constraint("Vertical", 1),
    Sketcher.Constraint("Vertical", 3),
    Sketcher.Constraint("Radius", 0, Q("1.5 mm")),
    Sketcher.Constraint("DistanceY", 1, 2, 1, 1, Q("25 mm")),
    Sketcher.Constraint("DistanceX", -1, 1, 0, 3, Q("22 mm")),
    Sketcher.Constraint("DistanceY", -1, 1, 0, 3, Q("62.5 mm")),
])
sketch12.setExpression("Constraints[6]", "Params.sketch12_radius")
sketch12.setExpression("Constraints[7]", "Params.sketch12_height")
pocket10 = body.newObject("PartDesign::Pocket", "Pocket009")
pocket10.Profile = sketch12
pocket10.setExpression("Length", "Params.pocket10_length")
doc.recompute()

linearpattern = body.newObject("PartDesign::LinearPattern", "LinearPattern")
linearpattern.Originals = [pocket7, pocket8, pocket9, pocket10]
linearpattern.Direction = (doc.getObject("Y_Axis"), [""])
linearpattern.Mode = "offset"
linearpattern.setExpression("Offset", "Params.linearpattern_pitch")
linearpattern.Occurrences = 2
linearpattern.Reversed = True
body.Tip = linearpattern

# Sketch on YZ plane
sketch13 = body.newObject("Sketcher::SketchObject", "Sketch012")
sketch13.AttachmentSupport = (doc.getObject("YZ_Plane"), [""])
sketch13.MapMode = "FlatFace"
sketch13.AttachmentOffset = App.Placement(V(0, 0, 45), App.Rotation())
sketch13.addGeometry([
    Part.Circle(V(0, 80, 0), V(0, 0, 1), 1),
    Part.Circle(V(0, 35, 0), V(0, 0, 1), 1),
], False)
sketch13.addConstraint([
    Sketcher.Constraint("Equal", 0, 1),
    Sketcher.Constraint("PointOnObject", 0, 3, -2),
    Sketcher.Constraint("PointOnObject", 1, 3, -2),
    Sketcher.Constraint("Diameter", 0, Q("2 mm")),
    Sketcher.Constraint("DistanceY", -1, 1, 0, 3, Q("80 mm")),
    Sketcher.Constraint("DistanceY", -1, 1, 1, 3, Q("35 mm")),
])
sketch13.setExpression("Constraints[3]", "Params.sketch13_diameter")
pocket11 = body.newObject("PartDesign::Pocket", "Pocket010")
pocket11.Profile = sketch13
pocket11.setExpression("Length", "Params.pocket11_length")
pocket11.Reversed = True

# Sketch on XZ plane
sketch14 = body.newObject("Sketcher::SketchObject", "Sketch013")
sketch14.AttachmentSupport = (doc.getObject("XZ_Plane"), [""])
sketch14.MapMode = "FlatFace"
sketch14.AttachmentOffset = App.Placement(V(0, 0, -45), App.Rotation())
sketch14.addGeometry([
    Part.Circle(V(0, 85, 0), V(0, 0, 1), 1),
    Part.Circle(V(0, 60, 0), V(0, 0, 1), 1),
], False)
sketch14.addConstraint([
    Sketcher.Constraint("Equal", 0, 1),
    Sketcher.Constraint("PointOnObject", 0, 3, -2),
    Sketcher.Constraint("PointOnObject", 1, 3, -2),
    Sketcher.Constraint("Diameter", 0, Q("2 mm")),
    Sketcher.Constraint("DistanceY", -1, 1, 0, 3, Q("85 mm")),
    Sketcher.Constraint("DistanceY", -1, 1, 1, 3, Q("60 mm")),
])
sketch14.setExpression("Constraints[3]", "Params.sketch14_diameter")
pocket12 = body.newObject("PartDesign::Pocket", "Pocket011")
pocket12.Profile = sketch14
pocket12.setExpression("Length", "Params.pocket12_length")

# Sketch on XZ plane
sketch15 = body.newObject("Sketcher::SketchObject", "Sketch014")
sketch15.AttachmentSupport = (doc.getObject("XZ_Plane"), [""])
sketch15.MapMode = "FlatFace"
sketch15.AttachmentOffset = App.Placement(V(0, 0, -45), App.Rotation())
sketch15.addGeometry([
    Part.LineSegment(V(-33, 95, 0), V(-45, 95, 0)),
    Part.LineSegment(V(-45, 95, 0), V(-45, 73, 0)),
    Part.LineSegment(V(-45, 73, 0), V(-33, 85, 0)),
    Part.LineSegment(V(-33, 85, 0), V(-33, 95, 0)),
], False)
sketch15.addConstraint([
    Sketcher.Constraint("Coincident", 0, 2, 1, 1),
    Sketcher.Constraint("Coincident", 1, 2, 2, 1),
    Sketcher.Constraint("Coincident", 2, 2, 3, 1),
    Sketcher.Constraint("Coincident", 3, 2, 0, 1),
    Sketcher.Constraint("Horizontal", 0),
    Sketcher.Constraint("Vertical", 1),
    Sketcher.Constraint("Vertical", 3),
    Sketcher.Constraint("DistanceX", 0, 2, 0, 1, Q("12 mm")),
    Sketcher.Constraint("DistanceY", 1, 2, 1, 1, Q("22 mm")),
    Sketcher.Constraint("DistanceY", 3, 1, 3, 2, Q("10 mm")),
    Sketcher.Constraint("DistanceX", 0, 2, -1, 1, Q("45 mm")),
    Sketcher.Constraint("DistanceY", -1, 1, 0, 2, Q("95 mm")),
])
sketch15.setExpression("Constraints[7]", "Params.sketch15_width")
sketch15.setExpression("Constraints[8]", "Params.sketch15_height")
sketch15.setExpression("Constraints[9]", "Params.sketch15_height2")
pad3 = body.newObject("PartDesign::Pad", "Pad002")
pad3.Profile = sketch15
pad3.setExpression("Length", "Params.pad3_length")

# Sketch on XZ plane
sketch16 = body.newObject("Sketcher::SketchObject", "Sketch015")
sketch16.AttachmentSupport = (doc.getObject("XZ_Plane"), [""])
sketch16.MapMode = "FlatFace"
sketch16.AttachmentOffset = App.Placement(V(0, 0, -45), App.Rotation())
sketch16.addGeometry([
    Part.LineSegment(V(33, 95, 0), V(45, 95, 0)),
    Part.LineSegment(V(45, 95, 0), V(45, 73, 0)),
    Part.LineSegment(V(45, 73, 0), V(33, 85, 0)),
    Part.LineSegment(V(33, 85, 0), V(33, 95, 0)),
], False)
sketch16.addConstraint([
    Sketcher.Constraint("Coincident", 0, 2, 1, 1),
    Sketcher.Constraint("Coincident", 1, 2, 2, 1),
    Sketcher.Constraint("Coincident", 2, 2, 3, 1),
    Sketcher.Constraint("Coincident", 3, 2, 0, 1),
    Sketcher.Constraint("Horizontal", 0),
    Sketcher.Constraint("Vertical", 1),
    Sketcher.Constraint("Vertical", 3),
    Sketcher.Constraint("DistanceX", 0, 1, 0, 2, Q("12 mm")),
    Sketcher.Constraint("DistanceY", 1, 2, 1, 1, Q("22 mm")),
    Sketcher.Constraint("DistanceY", 3, 1, 3, 2, Q("10 mm")),
    Sketcher.Constraint("DistanceX", -1, 1, 0, 2, Q("45 mm")),
    Sketcher.Constraint("DistanceY", -1, 1, 0, 2, Q("95 mm")),
])
sketch16.setExpression("Constraints[7]", "Params.sketch16_width")
sketch16.setExpression("Constraints[8]", "Params.sketch16_height")
sketch16.setExpression("Constraints[9]", "Params.sketch16_height2")
pad4 = body.newObject("PartDesign::Pad", "Pad003")
pad4.Profile = sketch16
pad4.setExpression("Length", "Params.pad4_length")
doc.recompute()

linearpattern2 = body.newObject("PartDesign::LinearPattern", "LinearPattern001")
linearpattern2.Originals = [pad3, pad4]
linearpattern2.Direction = (doc.getObject("Y_Axis"), [""])
linearpattern2.Mode = "offset"
linearpattern2.setExpression("Offset", "Params.linearpattern2_pitch")
linearpattern2.Occurrences = 2
linearpattern2.Reversed = True
body.Tip = linearpattern2

# Sketch on XY plane
sketch17 = body.newObject("Sketcher::SketchObject", "Sketch016")
sketch17.AttachmentSupport = (doc.getObject("XY_Plane"), [""])
sketch17.MapMode = "FlatFace"
sketch17.AttachmentOffset = App.Placement(V(0, 0, 95), App.Rotation())
sketch17.addGeometry([
    Part.Circle(V(-39, 39, 0), V(0, 0, 1), 1),
    Part.Circle(V(39, 39, 0), V(0, 0, 1), 1),
    Part.Circle(V(39, -39, 0), V(0, 0, 1), 1),
    Part.Circle(V(-39, -39, 0), V(0, 0, 1), 1),
], False)
sketch17.addConstraint([
    Sketcher.Constraint("Equal", 0, 1),
    Sketcher.Constraint("Equal", 1, 2),
    Sketcher.Constraint("Equal", 2, 3),
    Sketcher.Constraint("Symmetric", 0, 3, 2, 3, -1, 1),
    Sketcher.Constraint("Symmetric", 1, 3, 3, 3, -1, 1),
    Sketcher.Constraint("Symmetric", 0, 3, 1, 3, -2),
    Sketcher.Constraint("Diameter", 0, Q("2 mm")),
    Sketcher.Constraint("DistanceX", 0, 3, -1, 1, Q("39 mm")),
    Sketcher.Constraint("DistanceY", -1, 1, 0, 3, Q("39 mm")),
])
sketch17.setExpression("Constraints[6]", "Params.sketch17_diameter")
pocket13 = body.newObject("PartDesign::Pocket", "Pocket012")
pocket13.Profile = sketch17
pocket13.setExpression("Length", "Params.pocket13_length")

# Sketch on XY plane
sketch18 = body.newObject("Sketcher::SketchObject", "Sketch017")
sketch18.AttachmentSupport = (doc.getObject("XY_Plane"), [""])
sketch18.MapMode = "FlatFace"
sketch18.AttachmentOffset = App.Placement(V(0, 0, 95), App.Rotation())
sketch18.addGeometry([
    Part.LineSegment(V(42, 32, 0), V(32, 42, 0)),
    Part.LineSegment(V(32, 42, 0), V(32, 32, 0)),
    Part.LineSegment(V(32, 32, 0), V(42, 32, 0)),
], False)
sketch18.addConstraint([
    Sketcher.Constraint("Coincident", 0, 2, 1, 1),
    Sketcher.Constraint("Coincident", 1, 2, 2, 1),
    Sketcher.Constraint("Coincident", 2, 2, 0, 1),
    Sketcher.Constraint("Vertical", 1),
    Sketcher.Constraint("Horizontal", 2),
    Sketcher.Constraint("Equal", 2, 1),
    Sketcher.Constraint("DistanceX", 2, 1, 2, 2, Q("10 mm")),
    Sketcher.Constraint("DistanceX", -1, 1, 0, 2, Q("32 mm")),
    Sketcher.Constraint("DistanceY", -1, 1, 0, 2, Q("42 mm")),
])
sketch18.setExpression("Constraints[6]", "Params.sketch18_width")
pocket14 = body.newObject("PartDesign::Pocket", "Pocket013")
pocket14.Profile = sketch18
pocket14.setExpression("Length", "Params.pocket14_length")

doc.recompute()
